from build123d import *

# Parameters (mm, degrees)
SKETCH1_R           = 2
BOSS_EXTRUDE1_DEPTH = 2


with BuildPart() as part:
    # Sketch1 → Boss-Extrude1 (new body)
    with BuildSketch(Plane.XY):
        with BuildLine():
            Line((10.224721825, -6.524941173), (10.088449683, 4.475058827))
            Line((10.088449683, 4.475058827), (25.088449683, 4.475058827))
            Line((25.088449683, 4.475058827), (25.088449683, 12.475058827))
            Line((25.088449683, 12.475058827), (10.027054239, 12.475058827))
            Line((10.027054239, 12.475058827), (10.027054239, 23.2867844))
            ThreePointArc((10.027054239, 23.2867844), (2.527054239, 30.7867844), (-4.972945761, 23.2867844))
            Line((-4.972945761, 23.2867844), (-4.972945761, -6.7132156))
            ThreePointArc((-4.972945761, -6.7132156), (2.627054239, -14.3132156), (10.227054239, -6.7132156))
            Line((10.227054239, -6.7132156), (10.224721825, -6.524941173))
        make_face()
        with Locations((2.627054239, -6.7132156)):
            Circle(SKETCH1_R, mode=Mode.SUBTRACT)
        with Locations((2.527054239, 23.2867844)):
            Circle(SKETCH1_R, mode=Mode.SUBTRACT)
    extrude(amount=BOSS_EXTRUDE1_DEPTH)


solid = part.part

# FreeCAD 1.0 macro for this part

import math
import FreeCAD as App
import Part
import Sketcher
from FreeCAD import Vector
Q = App.Units.Quantity

doc = App.newDocument("Part")
params = doc.addObject("Spreadsheet::Sheet", "Params")
for row, (alias, value) in enumerate([
    ("sketch1_diameter", "4 mm"),
    ("sketch1_radius", "7.5 mm"),
    ("sketch1_radius2", "7.6 mm"),
    ("sketch1_width", "15 mm"),
    ("sketch1_height", "8 mm"),
    ("pad1_length", "2 mm"),
], start=1):
    params.set(f"A{row}", alias)
    params.set(f"B{row}", "=" + value)
    params.setAlias(f"B{row}", alias)

body = doc.addObject("PartDesign::Body", "Body")

sketch1 = body.newObject("Sketcher::SketchObject", "Sketch")
sketch1.AttachmentSupport = (doc.getObject("XY_Plane"), [""])
sketch1.MapMode = "FlatFace"
sketch1.addGeometry(Part.LineSegment(Vector(10.224722, -6.524941, 0), Vector(10.08845, 4.475059, 0)), False)
sketch1.addGeometry(Part.LineSegment(Vector(10.08845, 4.475059, 0), Vector(25.08845, 4.475059, 0)), False)
sketch1.addGeometry(Part.LineSegment(Vector(25.08845, 4.475059, 0), Vector(25.08845, 12.475059, 0)), False)
sketch1.addGeometry(Part.LineSegment(Vector(25.08845, 12.475059, 0), Vector(10.027054, 12.475059, 0)), False)
sketch1.addGeometry(Part.LineSegment(Vector(10.027054, 12.475059, 0), Vector(10.027054, 23.286784, 0)), False)
sketch1.addGeometry(Part.ArcOfCircle(Part.Circle(Vector(2.527054, 23.286784, 0), Vector(0, 0, 1), 7.5), math.radians(0), math.radians(180)), False)
sketch1.addGeometry(Part.LineSegment(Vector(-4.972946, 23.286784, 0), Vector(-4.972946, -6.713216, 0)), False)
sketch1.addGeometry(Part.ArcOfCircle(Part.Circle(Vector(2.627054, -6.713216, 0), Vector(0, 0, 1), 7.6), math.radians(180), math.radians(360)), False)
sketch1.addGeometry(Part.LineSegment(Vector(10.227054, -6.713216, 0), Vector(10.224722, -6.524941, 0)), False)
sketch1.addGeometry(Part.Circle(Vector(2.627054, -6.713216, 0), Vector(0, 0, 1), 2), False)
sketch1.addGeometry(Part.Circle(Vector(2.527054, 23.286784, 0), Vector(0, 0, 1), 2), False)
sketch1.addConstraint(Sketcher.Constraint("Coincident", 0, 2, 1, 1))
sketch1.addConstraint(Sketcher.Constraint("Coincident", 1, 2, 2, 1))
sketch1.addConstraint(Sketcher.Constraint("Coincident", 2, 2, 3, 1))
sketch1.addConstraint(Sketcher.Constraint("Coincident", 3, 2, 4, 1))
sketch1.addConstraint(Sketcher.Constraint("Tangent", 4, 2, 5, 1))
sketch1.addConstraint(Sketcher.Constraint("Tangent", 5, 2, 6, 1))
sketch1.addConstraint(Sketcher.Constraint("Tangent", 6, 2, 7, 1))
sketch1.addConstraint(Sketcher.Constraint("Coincident", 7, 2, 8, 1))
sketch1.addConstraint(Sketcher.Constraint("Coincident", 8, 2, 0, 1))
sketch1.addConstraint(Sketcher.Constraint("Horizontal", 1))
sketch1.addConstraint(Sketcher.Constraint("Vertical", 2))
sketch1.addConstraint(Sketcher.Constraint("Horizontal", 3))
sketch1.addConstraint(Sketcher.Constraint("Vertical", 4))
sketch1.addConstraint(Sketcher.Constraint("Vertical", 6))
sketch1.addConstraint(Sketcher.Constraint("Coincident", 9, 3, 7, 3))
sketch1.addConstraint(Sketcher.Constraint("Coincident", 10, 3, 5, 3))
sketch1.addConstraint(Sketcher.Constraint("Equal", 9, 10))
sketch1.addConstraint(Sketcher.Constraint("Parallel", 0, 8))
sketch1.addConstraint(Sketcher.Constraint("Horizontal", 6, 2, 7, 2))
sketch1.addConstraint(Sketcher.Constraint("Diameter", 9, Q("4 mm")))
sketch1.addConstraint(Sketcher.Constraint("Radius", 5, Q("7.5 mm")))
sketch1.addConstraint(Sketcher.Constraint("Radius", 7, Q("7.6 mm")))
sketch1.addConstraint(Sketcher.Constraint("DistanceX", 1, 1, 1, 2, Q("15 mm")))
sketch1.addConstraint(Sketcher.Constraint("DistanceY", 2, 1, 2, 2, Q("8 mm")))
sketch1.addConstraint(Sketcher.Constraint("DistanceY", 6, 2, 6, 1, Q("30 mm")))
sketch1.addConstraint(Sketcher.Constraint("DistanceY", 8, 2, 0, 2, Q("11 mm")))
sketch1.addConstraint(Sketcher.Constraint("Distance", 8, Q("0.188289 mm")))
sketch1.addConstraint(Sketcher.Constraint("DistanceX", 3, 2, 3, 1, Q("15.061395 mm")))
sketch1.addConstraint(Sketcher.Constraint("DistanceX", -1, 1, 0, 2, Q("10.08845 mm")))
sketch1.addConstraint(Sketcher.Constraint("DistanceY", -1, 1, 0, 2, Q("4.475059 mm")))
sketch1.setExpression("Constraints[19]", "Params.sketch1_diameter")
sketch1.setExpression("Constraints[20]", "Params.sketch1_radius")
sketch1.setExpression("Constraints[21]", "Params.sketch1_radius2")
sketch1.setExpression("Constraints[22]", "Params.sketch1_width")
sketch1.setExpression("Constraints[23]", "Params.sketch1_height")
pad1 = body.newObject("PartDesign::Pad", "Pad")
pad1.Profile = sketch1
pad1.setExpression("Length", "Params.pad1_length")

doc.recompute()
